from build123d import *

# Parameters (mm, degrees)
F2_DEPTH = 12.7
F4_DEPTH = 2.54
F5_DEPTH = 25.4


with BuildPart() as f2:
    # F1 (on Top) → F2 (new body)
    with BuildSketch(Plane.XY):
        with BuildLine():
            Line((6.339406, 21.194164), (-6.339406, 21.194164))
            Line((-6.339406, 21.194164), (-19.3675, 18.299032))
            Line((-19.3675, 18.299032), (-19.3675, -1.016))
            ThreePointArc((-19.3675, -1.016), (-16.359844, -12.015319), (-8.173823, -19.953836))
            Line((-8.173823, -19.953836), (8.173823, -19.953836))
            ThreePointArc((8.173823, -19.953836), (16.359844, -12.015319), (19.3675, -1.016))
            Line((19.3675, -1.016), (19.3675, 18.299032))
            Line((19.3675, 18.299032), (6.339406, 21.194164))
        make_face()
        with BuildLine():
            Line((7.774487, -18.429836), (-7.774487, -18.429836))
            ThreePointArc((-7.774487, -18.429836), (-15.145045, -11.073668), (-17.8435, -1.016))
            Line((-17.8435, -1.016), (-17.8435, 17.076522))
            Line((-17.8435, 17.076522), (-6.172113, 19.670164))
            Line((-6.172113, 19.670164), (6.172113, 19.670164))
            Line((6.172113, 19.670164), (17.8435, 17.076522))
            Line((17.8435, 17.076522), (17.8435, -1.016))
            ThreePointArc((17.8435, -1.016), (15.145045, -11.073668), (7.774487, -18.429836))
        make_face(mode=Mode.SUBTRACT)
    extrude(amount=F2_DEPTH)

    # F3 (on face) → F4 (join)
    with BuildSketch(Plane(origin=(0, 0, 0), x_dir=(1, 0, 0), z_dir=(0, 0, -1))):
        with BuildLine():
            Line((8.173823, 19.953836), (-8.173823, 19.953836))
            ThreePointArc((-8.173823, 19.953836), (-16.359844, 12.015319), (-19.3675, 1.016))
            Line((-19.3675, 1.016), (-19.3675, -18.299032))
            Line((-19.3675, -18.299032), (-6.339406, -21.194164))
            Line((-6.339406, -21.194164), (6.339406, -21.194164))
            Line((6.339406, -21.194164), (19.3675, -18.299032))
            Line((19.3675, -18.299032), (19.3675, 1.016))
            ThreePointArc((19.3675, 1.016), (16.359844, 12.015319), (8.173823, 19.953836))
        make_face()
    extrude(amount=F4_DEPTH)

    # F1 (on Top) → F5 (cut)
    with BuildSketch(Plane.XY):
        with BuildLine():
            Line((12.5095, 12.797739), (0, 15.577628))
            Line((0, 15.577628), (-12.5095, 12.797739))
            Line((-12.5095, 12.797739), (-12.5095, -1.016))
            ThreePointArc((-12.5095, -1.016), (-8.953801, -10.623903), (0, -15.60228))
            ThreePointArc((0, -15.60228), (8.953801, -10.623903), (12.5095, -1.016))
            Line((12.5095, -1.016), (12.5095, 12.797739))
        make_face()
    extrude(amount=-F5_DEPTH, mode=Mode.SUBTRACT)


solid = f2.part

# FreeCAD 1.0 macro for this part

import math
import FreeCAD as App
import Part
import Sketcher
from FreeCAD import Vector
Q = App.Units.Quantity

doc = App.newDocument("Part")
body = doc.addObject("PartDesign::Body", "Body")

sketch1 = body.newObject("Sketcher::SketchObject", "Sketch")
sketch1.AttachmentSupport = (doc.getObject("XY_Plane"), [""])
sketch1.MapMode = "FlatFace"
sketch1.addGeometry(Part.LineSegment(Vector(6, 21, 0), Vector(-6, 21, 0)), False)
sketch1.addGeometry(Part.LineSegment(Vector(-6, 21, 0), Vector(-19, 18, 0)), False)
sketch1.addGeometry(Part.LineSegment(Vector(-19, 18, 0), Vector(-19, -1, 0)), False)
sketch1.addGeometry(Part.ArcOfCircle(Part.Circle(Vector(2, -1, 0), Vector(0, 0, 1), 22), math.radians(180), math.radians(241)), False)
sketch1.addGeometry(Part.LineSegment(Vector(-8, -20, 0), Vector(8, -20, 0)), False)
sketch1.addGeometry(Part.ArcOfCircle(Part.Circle(Vector(-2, -1, 0), Vector(0, 0, 1), 22), math.radians(-61), math.radians(0)), False)
sketch1.addGeometry(Part.LineSegment(Vector(19, -1, 0), Vector(19, 18, 0)), False)
sketch1.addGeometry(Part.LineSegment(Vector(19, 18, 0), Vector(6, 21, 0)), False)
sketch1.addGeometry(Part.ArcOfCircle(Part.Circle(Vector(-2, -1, 0), Vector(0, 0, 1), 20), math.radians(-60), math.radians(0)), False)
sketch1.addGeometry(Part.LineSegment(Vector(8, -18, 0), Vector(-8, -18, 0)), False)
sketch1.addGeometry(Part.ArcOfCircle(Part.Circle(Vector(2, -1, 0), Vector(0, 0, 1), 20), math.radians(180), math.radians(240)), False)
sketch1.addGeometry(Part.LineSegment(Vector(-18, -1, 0), Vector(-18, 17, 0)), False)
sketch1.addGeometry(Part.LineSegment(Vector(-18, 17, 0), Vector(-6, 20, 0)), False)
sketch1.addGeometry(Part.LineSegment(Vector(-6, 20, 0), Vector(6, 20, 0)), False)
sketch1.addGeometry(Part.LineSegment(Vector(6, 20, 0), Vector(18, 17, 0)), False)
sketch1.addGeometry(Part.LineSegment(Vector(18, 17, 0), Vector(18, -1, 0)), False)
sketch1.addConstraint(Sketcher.Constraint("Coincident", 0, 2, 1, 1))
sketch1.addConstraint(Sketcher.Constraint("Coincident", 1, 2, 2, 1))
sketch1.addConstraint(Sketcher.Constraint("Tangent", 2, 2, 3, 1))
sketch1.addConstraint(Sketcher.Constraint("Coincident", 3, 2, 4, 1))
sketch1.addConstraint(Sketcher.Constraint("Coincident", 4, 2, 5, 1))
sketch1.addConstraint(Sketcher.Constraint("Tangent", 5, 2, 6, 1))
sketch1.addConstraint(Sketcher.Constraint("Coincident", 6, 2, 7, 1))
sketch1.addConstraint(Sketcher.Constraint("Coincident", 7, 2, 0, 1))
sketch1.addConstraint(Sketcher.Constraint("Coincident", 8, 1, 9, 1))
sketch1.addConstraint(Sketcher.Constraint("Coincident", 9, 2, 10, 2))
sketch1.addConstraint(Sketcher.Constraint("Tangent", 10, 1, 11, 1))
sketch1.addConstraint(Sketcher.Constraint("Coincident", 11, 2, 12, 1))
sketch1.addConstraint(Sketcher.Constraint("Coincident", 12, 2, 13, 1))
sketch1.addConstraint(Sketcher.Constraint("Coincident", 13, 2, 14, 1))
sketch1.addConstraint(Sketcher.Constraint("Coincident", 14, 2, 15, 1))
sketch1.addConstraint(Sketcher.Constraint("Tangent", 15, 2, 8, 2))
sketch1.addConstraint(Sketcher.Constraint("Horizontal", 0))
sketch1.addConstraint(Sketcher.Constraint("Vertical", 2))
sketch1.addConstraint(Sketcher.Constraint("Horizontal", 4))
sketch1.addConstraint(Sketcher.Constraint("Vertical", 6))
sketch1.addConstraint(Sketcher.Constraint("Horizontal", 9))
sketch1.addConstraint(Sketcher.Constraint("Vertical", 11))
sketch1.addConstraint(Sketcher.Constraint("Horizontal", 13))
sketch1.addConstraint(Sketcher.Constraint("Vertical", 15))
sketch1.addConstraint(Sketcher.Constraint("Coincident", 8, 3, 5, 3))
sketch1.addConstraint(Sketcher.Constraint("Coincident", 10, 3, 3, 3))
sketch1.addConstraint(Sketcher.Constraint("Equal", 3, 5))
sketch1.addConstraint(Sketcher.Constraint("Equal", 8, 10))
sketch1.addConstraint(Sketcher.Constraint("Symmetric", 3, 3, 5, 3, -2))
sketch1.addConstraint(Sketcher.Constraint("Parallel", 1, 12))
sketch1.addConstraint(Sketcher.Constraint("Parallel", 7, 14))
sketch1.addConstraint(Sketcher.Constraint("Horizontal", 1, 2, 6, 2))
sketch1.addConstraint(Sketcher.Constraint("Horizontal", 11, 2, 14, 2))
sketch1.addConstraint(Sketcher.Constraint("Equal", 1, 7))
sketch1.addConstraint(Sketcher.Constraint("DistanceY", 3, 3, -1, 1, Q("0.04 in")))
sketch1.addConstraint(Sketcher.Constraint("DistanceY", 4, 2, 8, 1, Q("0.06 in")))
sketch1.addConstraint(Sketcher.Constraint("DistanceX", 2, 2, 10, 1, Q("0.06 in")))
sketch1.addConstraint(Sketcher.Constraint("DistanceY", 12, 2, 0, 2, Q("0.06 in")))
sketch1.addConstraint(Sketcher.Constraint("Radius", 3, Q("21.61667 mm")))
sketch1.addConstraint(Sketcher.Constraint("DistanceX", 1, 2, -1, 1, Q("0.7625 in")))
sketch1.addConstraint(Sketcher.Constraint("Distance", 1, Q("13.345899 mm")))
sketch1.addConstraint(Sketcher.Constraint("DistanceX", 0, 2, 0, 1, Q("12.678812 mm")))
sketch1.addConstraint(Sketcher.Constraint("DistanceX", 4, 1, 4, 2, Q("16.347646 mm")))
sketch1.addConstraint(Sketcher.Constraint("DistanceX", 13, 1, 13, 2, Q("12.344226 mm")))
sketch1.addConstraint(Sketcher.Constraint("DistanceY", 2, 2, 2, 1, Q("19.315032 mm")))
pad1 = body.newObject("PartDesign::Pad", "Pad")
pad1.Profile = sketch1
pad1.Length = Q("0.5 in")

sketch2 = body.newObject("Sketcher::SketchObject", "Sketch001")
sketch2.AttachmentSupport = (doc.getObject("XY_Plane"), [""])
sketch2.MapMode = "FlatFace"
sketch2.addGeometry(Part.LineSegment(Vector(8, -20, 0), Vector(-8, -20, 0)), False)
sketch2.addGeometry(Part.ArcOfCircle(Part.Circle(Vector(2, -1, 0), Vector(0, 0, 1), 22), math.radians(180), math.radians(241)), False)
sketch2.addGeometry(Part.LineSegment(Vector(-19, -1, 0), Vector(-19, 18, 0)), False)
sketch2.addGeometry(Part.LineSegment(Vector(-19, 18, 0), Vector(-6, 21, 0)), False)
sketch2.addGeometry(Part.LineSegment(Vector(-6, 21, 0), Vector(6, 21, 0)), False)
sketch2.addGeometry(Part.LineSegment(Vector(6, 21, 0), Vector(19, 18, 0)), False)
sketch2.addGeometry(Part.LineSegment(Vector(19, 18, 0), Vector(19, -1, 0)), False)
sketch2.addGeometry(Part.ArcOfCircle(Part.Circle(Vector(-2, -1, 0), Vector(0, 0, 1), 22), math.radians(-61), math.radians(0)), False)
sketch2.addConstraint(Sketcher.Constraint("Coincident", 0, 2, 1, 2))
sketch2.addConstraint(Sketcher.Constraint("Tangent", 1, 1, 2, 1))
sketch2.addConstraint(Sketcher.Constraint("Coincident", 2, 2, 3, 1))
sketch2.addConstraint(Sketcher.Constraint("Coincident", 3, 2, 4, 1))
sketch2.addConstraint(Sketcher.Constraint("Coincident", 4, 2, 5, 1))
sketch2.addConstraint(Sketcher.Constraint("Coincident", 5, 2, 6, 1))
sketch2.addConstraint(Sketcher.Constraint("Tangent", 6, 2, 7, 2))
sketch2.addConstraint(Sketcher.Constraint("Coincident", 7, 1, 0, 1))
sketch2.addConstraint(Sketcher.Constraint("Horizontal", 0))
sketch2.addConstraint(Sketcher.Constraint("Vertical", 2))
sketch2.addConstraint(Sketcher.Constraint("Horizontal", 4))
sketch2.addConstraint(Sketcher.Constraint("Vertical", 6))
sketch2.addConstraint(Sketcher.Constraint("Equal", 1, 7))
sketch2.addConstraint(Sketcher.Constraint("Symmetric", 1, 3, 7, 3, -2))
sketch2.addConstraint(Sketcher.Constraint("Horizontal", 2, 2, 5, 2))
sketch2.addConstraint(Sketcher.Constraint("Equal", 3, 5))
sketch2.addConstraint(Sketcher.Constraint("DistanceY", 1, 3, -1, 1, Q("0.04 in")))
sketch2.addConstraint(Sketcher.Constraint("DistanceY", 0, 2, 3, 2, Q("1.62 in")))
sketch2.addConstraint(Sketcher.Constraint("Radius", 1, Q("21.61667 mm")))
sketch2.addConstraint(Sketcher.Constraint("DistanceX", 2, 2, 5, 2, Q("1.525 in")))
sketch2.addConstraint(Sketcher.Constraint("Distance", 3, Q("13.345899 mm")))
sketch2.addConstraint(Sketcher.Constraint("DistanceX", 0, 2, 0, 1, Q("16.347646 mm")))
sketch2.addConstraint(Sketcher.Constraint("DistanceX", 4, 1, 4, 2, Q("12.678812 mm")))
pad2 = body.newObject("PartDesign::Pad", "Pad001")
pad2.Profile = sketch2
pad2.Length = Q("0.1 in")
pad2.Reversed = True

sketch3 = body.newObject("Sketcher::SketchObject", "Sketch002")
sketch3.AttachmentSupport = (doc.getObject("XY_Plane"), [""])
sketch3.MapMode = "FlatFace"
sketch3.addGeometry(Part.LineSegment(Vector(13, 13, 0), Vector(0, 16, 0)), False)
sketch3.addGeometry(Part.LineSegment(Vector(0, 16, 0), Vector(-13, 13, 0)), False)
sketch3.addGeometry(Part.LineSegment(Vector(-13, 13, 0), Vector(-13, -1, 0)), False)
sketch3.addGeometry(Part.ArcOfCircle(Part.Circle(Vector(2, -1, 0), Vector(0, 0, 1), 15), math.radians(180), math.radians(261)), False)
sketch3.addGeometry(Part.ArcOfCircle(Part.Circle(Vector(-2, -1, 0), Vector(0, 0, 1), 15), math.radians(-81), math.radians(0)), False)
sketch3.addGeometry(Part.LineSegment(Vector(13, -1, 0), Vector(13, 13, 0)), False)
sketch3.addConstraint(Sketcher.Constraint("Coincident", 0, 2, 1, 1))
sketch3.addConstraint(Sketcher.Constraint("Coincident", 1, 2, 2, 1))
sketch3.addConstraint(Sketcher.Constraint("Tangent", 2, 2, 3, 1))
sketch3.addConstraint(Sketcher.Constraint("Coincident", 3, 2, 4, 1))
sketch3.addConstraint(Sketcher.Constraint("Tangent", 4, 2, 5, 1))
sketch3.addConstraint(Sketcher.Constraint("Coincident", 5, 2, 0, 1))
sketch3.addConstraint(Sketcher.Constraint("Vertical", 2))
sketch3.addConstraint(Sketcher.Constraint("Vertical", 5))
sketch3.addConstraint(Sketcher.Constraint("Equal", 3, 4))
sketch3.addConstraint(Sketcher.Constraint("Symmetric", 3, 3, 4, 3, -2))
sketch3.addConstraint(Sketcher.Constraint("PointOnObject", 0, 2, -2))
sketch3.addConstraint(Sketcher.Constraint("Horizontal", 1, 2, 5, 2))
sketch3.addConstraint(Sketcher.Constraint("DistanceY", 3, 3, -1, 1, Q("0.0400001 in")))
sketch3.addConstraint(Sketcher.Constraint("DistanceX", 2, 2, 4, 2, Q("0.985 in")))
sketch3.addConstraint(Sketcher.Constraint("Radius", 3, Q("14.758667 mm")))
sketch3.addConstraint(Sketcher.Constraint("DistanceY", 2, 2, 2, 1, Q("13.813739 mm")))
sketch3.addConstraint(Sketcher.Constraint("DistanceY", -1, 1, 0, 2, Q("15.577628 mm")))
pocket1 = body.newObject("PartDesign::Pocket", "Pocket")
pocket1.Profile = sketch3
pocket1.Length = Q("1 in")

doc.recompute()
